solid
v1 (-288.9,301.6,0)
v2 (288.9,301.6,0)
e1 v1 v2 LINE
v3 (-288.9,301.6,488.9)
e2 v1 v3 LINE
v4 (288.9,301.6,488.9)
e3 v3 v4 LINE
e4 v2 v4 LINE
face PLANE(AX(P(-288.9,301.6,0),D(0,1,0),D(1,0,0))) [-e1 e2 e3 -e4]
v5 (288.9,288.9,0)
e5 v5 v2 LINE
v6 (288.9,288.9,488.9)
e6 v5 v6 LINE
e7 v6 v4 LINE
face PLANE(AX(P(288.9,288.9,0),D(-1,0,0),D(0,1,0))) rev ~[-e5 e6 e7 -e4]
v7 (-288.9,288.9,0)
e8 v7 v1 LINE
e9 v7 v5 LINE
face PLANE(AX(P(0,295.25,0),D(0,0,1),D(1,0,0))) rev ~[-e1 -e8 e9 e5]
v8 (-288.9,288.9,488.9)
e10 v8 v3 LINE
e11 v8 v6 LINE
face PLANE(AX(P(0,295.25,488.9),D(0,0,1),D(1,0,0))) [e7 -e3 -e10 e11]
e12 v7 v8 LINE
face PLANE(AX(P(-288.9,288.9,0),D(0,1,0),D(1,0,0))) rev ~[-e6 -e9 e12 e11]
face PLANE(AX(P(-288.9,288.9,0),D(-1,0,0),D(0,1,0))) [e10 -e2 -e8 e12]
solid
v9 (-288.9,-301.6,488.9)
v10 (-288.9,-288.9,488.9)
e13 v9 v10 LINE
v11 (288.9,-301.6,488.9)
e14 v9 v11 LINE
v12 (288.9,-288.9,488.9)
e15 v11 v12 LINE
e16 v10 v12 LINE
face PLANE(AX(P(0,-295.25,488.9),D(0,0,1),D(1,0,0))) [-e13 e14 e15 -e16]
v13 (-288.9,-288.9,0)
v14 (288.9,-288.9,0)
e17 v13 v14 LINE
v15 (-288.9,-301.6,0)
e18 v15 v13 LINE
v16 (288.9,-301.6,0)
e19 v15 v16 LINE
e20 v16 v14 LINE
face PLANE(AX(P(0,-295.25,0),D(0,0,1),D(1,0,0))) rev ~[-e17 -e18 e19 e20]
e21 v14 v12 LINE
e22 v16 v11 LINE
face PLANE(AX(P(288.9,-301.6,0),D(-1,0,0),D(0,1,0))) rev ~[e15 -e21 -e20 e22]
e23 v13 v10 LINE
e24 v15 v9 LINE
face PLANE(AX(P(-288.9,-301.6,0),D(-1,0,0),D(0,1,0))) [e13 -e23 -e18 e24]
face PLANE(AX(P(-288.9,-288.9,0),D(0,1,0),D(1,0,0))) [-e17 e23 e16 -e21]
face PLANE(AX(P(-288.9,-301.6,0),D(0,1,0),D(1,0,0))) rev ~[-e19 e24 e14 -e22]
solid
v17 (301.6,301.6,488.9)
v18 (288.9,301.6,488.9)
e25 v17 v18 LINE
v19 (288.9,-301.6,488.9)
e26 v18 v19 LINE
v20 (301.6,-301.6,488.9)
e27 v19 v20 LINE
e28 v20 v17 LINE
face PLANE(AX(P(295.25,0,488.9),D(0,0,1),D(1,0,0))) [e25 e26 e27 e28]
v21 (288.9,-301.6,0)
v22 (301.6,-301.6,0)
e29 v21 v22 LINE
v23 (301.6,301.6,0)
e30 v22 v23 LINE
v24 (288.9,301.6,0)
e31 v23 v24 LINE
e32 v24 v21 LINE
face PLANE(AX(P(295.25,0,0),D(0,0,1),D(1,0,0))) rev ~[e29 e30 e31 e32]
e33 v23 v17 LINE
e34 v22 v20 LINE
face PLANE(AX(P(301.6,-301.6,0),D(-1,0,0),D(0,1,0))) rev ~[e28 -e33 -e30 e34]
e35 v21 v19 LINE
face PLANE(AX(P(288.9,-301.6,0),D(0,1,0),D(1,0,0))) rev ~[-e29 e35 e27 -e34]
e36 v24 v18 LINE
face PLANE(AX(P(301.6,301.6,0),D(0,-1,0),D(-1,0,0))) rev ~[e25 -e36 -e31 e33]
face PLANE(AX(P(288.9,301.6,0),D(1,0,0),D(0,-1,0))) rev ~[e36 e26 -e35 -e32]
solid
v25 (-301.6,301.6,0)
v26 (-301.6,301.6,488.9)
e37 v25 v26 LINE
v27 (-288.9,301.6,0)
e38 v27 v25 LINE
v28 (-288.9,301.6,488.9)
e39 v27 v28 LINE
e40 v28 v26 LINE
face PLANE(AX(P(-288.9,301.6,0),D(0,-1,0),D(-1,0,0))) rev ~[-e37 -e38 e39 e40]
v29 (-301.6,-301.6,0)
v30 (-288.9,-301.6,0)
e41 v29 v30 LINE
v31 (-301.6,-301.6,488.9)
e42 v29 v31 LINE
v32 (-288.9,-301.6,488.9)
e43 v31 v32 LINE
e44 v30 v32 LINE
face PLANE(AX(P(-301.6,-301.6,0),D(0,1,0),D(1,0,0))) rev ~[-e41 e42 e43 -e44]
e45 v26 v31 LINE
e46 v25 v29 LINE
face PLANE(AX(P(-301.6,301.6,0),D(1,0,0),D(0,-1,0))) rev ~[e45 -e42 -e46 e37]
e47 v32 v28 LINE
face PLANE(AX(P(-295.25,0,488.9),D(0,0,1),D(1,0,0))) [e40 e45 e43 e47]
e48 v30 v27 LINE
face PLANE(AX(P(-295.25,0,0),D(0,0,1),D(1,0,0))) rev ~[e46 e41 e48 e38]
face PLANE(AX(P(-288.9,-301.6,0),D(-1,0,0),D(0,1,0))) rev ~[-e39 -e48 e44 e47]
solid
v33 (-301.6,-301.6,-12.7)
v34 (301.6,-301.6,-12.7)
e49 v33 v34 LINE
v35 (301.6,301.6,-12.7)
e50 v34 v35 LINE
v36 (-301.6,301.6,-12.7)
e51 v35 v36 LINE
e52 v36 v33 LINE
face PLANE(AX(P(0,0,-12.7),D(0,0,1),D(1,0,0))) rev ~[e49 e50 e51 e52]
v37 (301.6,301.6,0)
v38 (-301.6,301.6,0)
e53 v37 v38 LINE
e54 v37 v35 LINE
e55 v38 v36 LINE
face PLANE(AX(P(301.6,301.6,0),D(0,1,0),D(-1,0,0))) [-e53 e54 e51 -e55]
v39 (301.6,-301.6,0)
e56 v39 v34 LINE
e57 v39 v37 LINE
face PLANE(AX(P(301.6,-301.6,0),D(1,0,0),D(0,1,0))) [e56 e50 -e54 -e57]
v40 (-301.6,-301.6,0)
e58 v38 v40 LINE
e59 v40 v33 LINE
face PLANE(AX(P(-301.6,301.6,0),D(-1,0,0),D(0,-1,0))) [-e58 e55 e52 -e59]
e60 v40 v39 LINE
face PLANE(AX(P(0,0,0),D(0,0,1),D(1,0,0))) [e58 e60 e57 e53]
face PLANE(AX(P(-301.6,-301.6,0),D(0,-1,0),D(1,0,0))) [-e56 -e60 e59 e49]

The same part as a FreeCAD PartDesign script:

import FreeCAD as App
import Part
import Sketcher
from FreeCAD import Vector
Q = App.Units.Quantity


def add_polygon(sketch, points):
    """Adds a closed chain of lines whose ends are joined by coincident constraints."""
    first, n = sketch.GeometryCount, len(points)
    for a, b in zip(points, points[1:] + points[:1]):
        sketch.addGeometry(Part.LineSegment(App.Vector(*a, 0), App.Vector(*b, 0)), False)
    for i in range(n):
        sketch.addConstraint(Sketcher.Constraint("Coincident", first + i, 2, first + (i + 1) % n, 1))

doc = App.newDocument("Part")
body = doc.addObject("PartDesign::Body", "Body")

sketch1 = body.newObject("Sketcher::SketchObject", "Sketch")
sketch1.AttachmentSupport = (doc.getObject("XY_Plane"), [""])
sketch1.MapMode = "FlatFace"
add_polygon(sketch1, [(302, -302), (302, 302), (-302, 302), (-302, -302)])
sketch1.addConstraint([
    Sketcher.Constraint("Vertical", 0),
    Sketcher.Constraint("Horizontal", 1),
    Sketcher.Constraint("Vertical", 2),
    Sketcher.Constraint("Horizontal", 3),
    Sketcher.Constraint("Symmetric", 0, 2, 2, 2, -1, 1),
    Sketcher.Constraint("Equal", 3, 0),
    Sketcher.Constraint("DistanceX", 1, 2, 1, 1, Q("603.2 mm")),
])
pad1 = body.newObject("PartDesign::Pad", "Pad")
pad1.Profile = sketch1
pad1.Length = 12.7
pad1.Reversed = True
body2 = doc.addObject("PartDesign::Body", "Body001")

sketch2 = body2.newObject("Sketcher::SketchObject", "Sketch001")
sketch2.AttachmentSupport = (doc.getObject("XY_Plane001"), [""])
sketch2.MapMode = "FlatFace"
add_polygon(sketch2, [(-289, 302), (-289, 289), (289, 289), (289, 302)])
sketch2.addConstraint([
    Sketcher.Constraint("Vertical", 0),
    Sketcher.Constraint("Horizontal", 1),
    Sketcher.Constraint("Vertical", 2),
    Sketcher.Constraint("Horizontal", 3),
    Sketcher.Constraint("DistanceX", 1, 1, 1, 2, Q("577.8 mm")),
    Sketcher.Constraint("DistanceY", 0, 2, 0, 1, Q("12.7 mm")),
    Sketcher.Constraint("DistanceX", 0, 2, -1, 1, Q("288.9 mm")),
    Sketcher.Constraint("DistanceY", -1, 1, 0, 2, Q("288.9 mm")),
])
pad2 = body2.newObject("PartDesign::Pad", "Pad001")
pad2.Profile = sketch2
pad2.Length = 488.9
body3 = doc.addObject("PartDesign::Body", "Body002")

sketch3 = body3.newObject("Sketcher::SketchObject", "Sketch002")
sketch3.AttachmentSupport = (doc.getObject("XY_Plane002"), [""])
sketch3.MapMode = "FlatFace"
add_polygon(sketch3, [(-289, 302), (-302, 302), (-302, -302), (-289, -302)])
sketch3.addConstraint([
    Sketcher.Constraint("Horizontal", 0),
    Sketcher.Constraint("Vertical", 1),
    Sketcher.Constraint("Horizontal", 2),
    Sketcher.Constraint("Vertical", 3),
    Sketcher.Constraint("DistanceX", 0, 2, 0, 1, Q("12.7 mm")),
    Sketcher.Constraint("DistanceY", 1, 2, 1, 1, Q("603.2 mm")),
    Sketcher.Constraint("DistanceX", 0, 2, -1, 1, Q("301.6 mm")),
    Sketcher.Constraint("DistanceY", -1, 1, 0, 2, Q("301.6 mm")),
])
pad3 = body3.newObject("PartDesign::Pad", "Pad002")
pad3.Profile = sketch3
pad3.Length = 488.9
body4 = doc.addObject("PartDesign::Body", "Body003")

sketch4 = body4.newObject("Sketcher::SketchObject", "Sketch003")
sketch4.AttachmentSupport = (doc.getObject("XY_Plane003"), [""])
sketch4.MapMode = "FlatFace"
add_polygon(sketch4, [(289, 302), (289, -302), (302, -302), (302, 302)])
sketch4.addConstraint([
    Sketcher.Constraint("Vertical", 0),
    Sketcher.Constraint("Horizontal", 1),
    Sketcher.Constraint("Vertical", 2),
    Sketcher.Constraint("Horizontal", 3),
    Sketcher.Constraint("DistanceX", 1, 1, 1, 2, Q("12.7 mm")),
    Sketcher.Constraint("DistanceY", 0, 2, 0, 1, Q("603.2 mm")),
    Sketcher.Constraint("DistanceX", -1, 1, 0, 2, Q("288.9 mm")),
    Sketcher.Constraint("DistanceY", 0, 2, -1, 1, Q("301.6 mm")),
])
pad4 = body4.newObject("PartDesign::Pad", "Pad003")
pad4.Profile = sketch4
pad4.Length = 488.9
body5 = doc.addObject("PartDesign::Body", "Body004")

sketch5 = body5.newObject("Sketcher::SketchObject", "Sketch004")
sketch5.AttachmentSupport = (doc.getObject("XY_Plane004"), [""])
sketch5.MapMode = "FlatFace"
add_polygon(sketch5, [(-289, -289), (-289, -302), (289, -302), (289, -289)])
sketch5.addConstraint([
    Sketcher.Constraint("Vertical", 0),
    Sketcher.Constraint("Horizontal", 1),
    Sketcher.Constraint("Vertical", 2),
    Sketcher.Constraint("Horizontal", 3),
    Sketcher.Constraint("DistanceX", 1, 1, 1, 2, Q("577.8 mm")),
    Sketcher.Constraint("DistanceY", 0, 2, 0, 1, Q("12.7 mm")),
    Sketcher.Constraint("DistanceX", 0, 2, -1, 1, Q("288.9 mm")),
    Sketcher.Constraint("DistanceY", 0, 2, -1, 1, Q("301.6 mm")),
])
pad5 = body5.newObject("PartDesign::Pad", "Pad004")
pad5.Profile = sketch5
pad5.Length = 488.9

doc.recompute()
